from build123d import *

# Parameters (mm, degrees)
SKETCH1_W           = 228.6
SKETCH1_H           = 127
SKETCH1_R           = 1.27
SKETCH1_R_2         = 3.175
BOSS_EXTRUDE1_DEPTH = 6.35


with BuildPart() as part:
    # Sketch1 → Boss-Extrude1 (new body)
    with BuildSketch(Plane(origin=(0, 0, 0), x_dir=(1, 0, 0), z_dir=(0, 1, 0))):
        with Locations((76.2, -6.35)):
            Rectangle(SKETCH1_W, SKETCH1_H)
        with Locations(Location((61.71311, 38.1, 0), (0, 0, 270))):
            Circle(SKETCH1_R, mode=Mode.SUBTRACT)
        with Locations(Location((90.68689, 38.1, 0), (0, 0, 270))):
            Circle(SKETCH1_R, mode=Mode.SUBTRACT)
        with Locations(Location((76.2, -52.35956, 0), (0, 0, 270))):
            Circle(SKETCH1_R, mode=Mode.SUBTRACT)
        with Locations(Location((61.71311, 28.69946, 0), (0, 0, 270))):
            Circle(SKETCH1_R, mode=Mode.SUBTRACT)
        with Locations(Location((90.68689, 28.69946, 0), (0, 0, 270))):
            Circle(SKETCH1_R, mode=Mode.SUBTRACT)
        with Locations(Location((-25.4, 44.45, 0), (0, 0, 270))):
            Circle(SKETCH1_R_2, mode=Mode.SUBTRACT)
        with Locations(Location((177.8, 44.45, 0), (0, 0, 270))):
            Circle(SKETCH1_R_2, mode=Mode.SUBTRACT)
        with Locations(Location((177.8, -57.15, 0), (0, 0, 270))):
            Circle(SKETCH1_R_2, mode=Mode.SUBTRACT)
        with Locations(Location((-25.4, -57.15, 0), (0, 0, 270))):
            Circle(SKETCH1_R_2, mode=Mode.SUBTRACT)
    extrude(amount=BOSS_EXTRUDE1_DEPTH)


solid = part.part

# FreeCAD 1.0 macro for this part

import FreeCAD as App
import Part
import Sketcher

V = App.Vector
Q = App.Units.Quantity

doc = App.newDocument("Part")
params = doc.addObject("Spreadsheet::Sheet", "Params")
for row, (alias, value) in enumerate([
    ("sketch1_diameter", "0.1 in"),
    ("sketch1_diameter2", "0.25 in"),
    ("sketch1_width", "9 in"),
    ("sketch1_height", "5 in"),
    ("pad1_length", "0.25 in"),
], start=1):
    params.set(f"A{row}", alias)
    params.set(f"B{row}", "=" + value)
    params.setAlias(f"B{row}", alias)

body = doc.addObject("PartDesign::Body", "Body")

sketch1 = body.newObject("Sketcher::SketchObject", "Sketch")
sketch1.AttachmentSupport = (doc.getObject("XZ_Plane"), [""])
sketch1.MapMode = "FlatFace"
sketch1.addGeometry([
    Part.LineSegment(V(-38.1, -57.1, 0), V(-38.1, 69.8, 0)),
    Part.LineSegment(V(-38.1, 69.8, 0), V(190.5, 69.8, 0)),
    Part.LineSegment(V(190.5, 69.8, 0), V(190.5, -57.1, 0)),
    Part.LineSegment(V(190.5, -57.1, 0), V(-38.1, -57.1, 0)),
    Part.Circle(V(-25.4, 57.1, 0), V(0, 0, 1), 3.2),
    Part.Circle(V(76.2, 52.4, 0), V(0, 0, 1), 1.3),
    Part.Circle(V(177.8, 57.1, 0), V(0, 0, 1), 3.2),
    Part.Circle(V(-25.4, -44.5, 0), V(0, 0, 1), 3.2),
    Part.Circle(V(61.7, -28.7, 0), V(0, 0, 1), 1.3),
    Part.Circle(V(61.7, -38.1, 0), V(0, 0, 1), 1.3),
    Part.Circle(V(90.7, -28.7, 0), V(0, 0, 1), 1.3),
    Part.Circle(V(90.7, -38.1, 0), V(0, 0, 1), 1.3),
    Part.Circle(V(177.8, -44.5, 0), V(0, 0, 1), 3.2),
], False)
sketch1.addConstraint([
    Sketcher.Constraint("Coincident", 0, 2, 1, 1),
    Sketcher.Constraint("Coincident", 1, 2, 2, 1),
    Sketcher.Constraint("Coincident", 2, 2, 3, 1),
    Sketcher.Constraint("Coincident", 3, 2, 0, 1),
    Sketcher.Constraint("Vertical", 0),
    Sketcher.Constraint("Horizontal", 1),
    Sketcher.Constraint("Vertical", 2),
    Sketcher.Constraint("Horizontal", 3),
    Sketcher.Constraint("Equal", 4, 6),
    Sketcher.Constraint("Equal", 6, 7),
    Sketcher.Constraint("Equal", 5, 8),
    Sketcher.Constraint("Equal", 8, 9),
    Sketcher.Constraint("Equal", 9, 10),
    Sketcher.Constraint("Equal", 10, 11),
    Sketcher.Constraint("Equal", 7, 12),
    Sketcher.Constraint("Horizontal", 4, 3, 6, 3),
    Sketcher.Constraint("Horizontal", 8, 3, 10, 3),
    Sketcher.Constraint("Horizontal", 9, 3, 11, 3),
    Sketcher.Constraint("Horizontal", 7, 3, 12, 3),
    Sketcher.Constraint("Vertical", 4, 3, 7, 3),
    Sketcher.Constraint("Vertical", 8, 3, 9, 3),
    Sketcher.Constraint("Vertical", 10, 3, 11, 3),
    Sketcher.Constraint("Vertical", 6, 3, 12, 3),
    Sketcher.Constraint("Diameter", 5, Q("0.1 in")),
    Sketcher.Constraint("Diameter", 4, Q("0.25 in")),
    Sketcher.Constraint("DistanceX", 1, 1, 1, 2, Q("9 in")),
    Sketcher.Constraint("DistanceY", 0, 1, 0, 2, Q("5 in")),
    Sketcher.Constraint("DistanceX", 4, 3, -1, 1, Q("1 in")),
    Sketcher.Constraint("DistanceX", -1, 1, 5, 3, Q("3 in")),
    Sketcher.Constraint("DistanceX", -1, 1, 6, 3, Q("7 in")),
    Sketcher.Constraint("DistanceY", 7, 3, 4, 3, Q("4 in")),
    Sketcher.Constraint("DistanceY", 9, 3, -1, 1, Q("1.5 in")),
    Sketcher.Constraint("DistanceX", 0, 2, -1, 1, Q("1.5 in")),
    Sketcher.Constraint("DistanceY", 4, 3, 0, 2, Q("0.5 in")),
    Sketcher.Constraint("DistanceY", -1, 1, 4, 3, Q("2.25 in")),
    Sketcher.Constraint("DistanceY", -1, 1, 5, 3, Q("2.0614 in")),
    Sketcher.Constraint("DistanceY", 8, 3, -1, 1, Q("1.1299 in")),
    Sketcher.Constraint("DistanceX", 8, 3, 10, 3, Q("1.1407 in")),
    Sketcher.Constraint("DistanceX", -1, 1, 8, 3, Q("61.71311 mm")),
])
sketch1.setExpression("Constraints[23]", "Params.sketch1_diameter")
sketch1.setExpression("Constraints[24]", "Params.sketch1_diameter2")
sketch1.setExpression("Constraints[25]", "Params.sketch1_width")
sketch1.setExpression("Constraints[26]", "Params.sketch1_height")
pad1 = body.newObject("PartDesign::Pad", "Pad")
pad1.Profile = sketch1
pad1.setExpression("Length", "Params.pad1_length")
pad1.Reversed = True

doc.recompute()
